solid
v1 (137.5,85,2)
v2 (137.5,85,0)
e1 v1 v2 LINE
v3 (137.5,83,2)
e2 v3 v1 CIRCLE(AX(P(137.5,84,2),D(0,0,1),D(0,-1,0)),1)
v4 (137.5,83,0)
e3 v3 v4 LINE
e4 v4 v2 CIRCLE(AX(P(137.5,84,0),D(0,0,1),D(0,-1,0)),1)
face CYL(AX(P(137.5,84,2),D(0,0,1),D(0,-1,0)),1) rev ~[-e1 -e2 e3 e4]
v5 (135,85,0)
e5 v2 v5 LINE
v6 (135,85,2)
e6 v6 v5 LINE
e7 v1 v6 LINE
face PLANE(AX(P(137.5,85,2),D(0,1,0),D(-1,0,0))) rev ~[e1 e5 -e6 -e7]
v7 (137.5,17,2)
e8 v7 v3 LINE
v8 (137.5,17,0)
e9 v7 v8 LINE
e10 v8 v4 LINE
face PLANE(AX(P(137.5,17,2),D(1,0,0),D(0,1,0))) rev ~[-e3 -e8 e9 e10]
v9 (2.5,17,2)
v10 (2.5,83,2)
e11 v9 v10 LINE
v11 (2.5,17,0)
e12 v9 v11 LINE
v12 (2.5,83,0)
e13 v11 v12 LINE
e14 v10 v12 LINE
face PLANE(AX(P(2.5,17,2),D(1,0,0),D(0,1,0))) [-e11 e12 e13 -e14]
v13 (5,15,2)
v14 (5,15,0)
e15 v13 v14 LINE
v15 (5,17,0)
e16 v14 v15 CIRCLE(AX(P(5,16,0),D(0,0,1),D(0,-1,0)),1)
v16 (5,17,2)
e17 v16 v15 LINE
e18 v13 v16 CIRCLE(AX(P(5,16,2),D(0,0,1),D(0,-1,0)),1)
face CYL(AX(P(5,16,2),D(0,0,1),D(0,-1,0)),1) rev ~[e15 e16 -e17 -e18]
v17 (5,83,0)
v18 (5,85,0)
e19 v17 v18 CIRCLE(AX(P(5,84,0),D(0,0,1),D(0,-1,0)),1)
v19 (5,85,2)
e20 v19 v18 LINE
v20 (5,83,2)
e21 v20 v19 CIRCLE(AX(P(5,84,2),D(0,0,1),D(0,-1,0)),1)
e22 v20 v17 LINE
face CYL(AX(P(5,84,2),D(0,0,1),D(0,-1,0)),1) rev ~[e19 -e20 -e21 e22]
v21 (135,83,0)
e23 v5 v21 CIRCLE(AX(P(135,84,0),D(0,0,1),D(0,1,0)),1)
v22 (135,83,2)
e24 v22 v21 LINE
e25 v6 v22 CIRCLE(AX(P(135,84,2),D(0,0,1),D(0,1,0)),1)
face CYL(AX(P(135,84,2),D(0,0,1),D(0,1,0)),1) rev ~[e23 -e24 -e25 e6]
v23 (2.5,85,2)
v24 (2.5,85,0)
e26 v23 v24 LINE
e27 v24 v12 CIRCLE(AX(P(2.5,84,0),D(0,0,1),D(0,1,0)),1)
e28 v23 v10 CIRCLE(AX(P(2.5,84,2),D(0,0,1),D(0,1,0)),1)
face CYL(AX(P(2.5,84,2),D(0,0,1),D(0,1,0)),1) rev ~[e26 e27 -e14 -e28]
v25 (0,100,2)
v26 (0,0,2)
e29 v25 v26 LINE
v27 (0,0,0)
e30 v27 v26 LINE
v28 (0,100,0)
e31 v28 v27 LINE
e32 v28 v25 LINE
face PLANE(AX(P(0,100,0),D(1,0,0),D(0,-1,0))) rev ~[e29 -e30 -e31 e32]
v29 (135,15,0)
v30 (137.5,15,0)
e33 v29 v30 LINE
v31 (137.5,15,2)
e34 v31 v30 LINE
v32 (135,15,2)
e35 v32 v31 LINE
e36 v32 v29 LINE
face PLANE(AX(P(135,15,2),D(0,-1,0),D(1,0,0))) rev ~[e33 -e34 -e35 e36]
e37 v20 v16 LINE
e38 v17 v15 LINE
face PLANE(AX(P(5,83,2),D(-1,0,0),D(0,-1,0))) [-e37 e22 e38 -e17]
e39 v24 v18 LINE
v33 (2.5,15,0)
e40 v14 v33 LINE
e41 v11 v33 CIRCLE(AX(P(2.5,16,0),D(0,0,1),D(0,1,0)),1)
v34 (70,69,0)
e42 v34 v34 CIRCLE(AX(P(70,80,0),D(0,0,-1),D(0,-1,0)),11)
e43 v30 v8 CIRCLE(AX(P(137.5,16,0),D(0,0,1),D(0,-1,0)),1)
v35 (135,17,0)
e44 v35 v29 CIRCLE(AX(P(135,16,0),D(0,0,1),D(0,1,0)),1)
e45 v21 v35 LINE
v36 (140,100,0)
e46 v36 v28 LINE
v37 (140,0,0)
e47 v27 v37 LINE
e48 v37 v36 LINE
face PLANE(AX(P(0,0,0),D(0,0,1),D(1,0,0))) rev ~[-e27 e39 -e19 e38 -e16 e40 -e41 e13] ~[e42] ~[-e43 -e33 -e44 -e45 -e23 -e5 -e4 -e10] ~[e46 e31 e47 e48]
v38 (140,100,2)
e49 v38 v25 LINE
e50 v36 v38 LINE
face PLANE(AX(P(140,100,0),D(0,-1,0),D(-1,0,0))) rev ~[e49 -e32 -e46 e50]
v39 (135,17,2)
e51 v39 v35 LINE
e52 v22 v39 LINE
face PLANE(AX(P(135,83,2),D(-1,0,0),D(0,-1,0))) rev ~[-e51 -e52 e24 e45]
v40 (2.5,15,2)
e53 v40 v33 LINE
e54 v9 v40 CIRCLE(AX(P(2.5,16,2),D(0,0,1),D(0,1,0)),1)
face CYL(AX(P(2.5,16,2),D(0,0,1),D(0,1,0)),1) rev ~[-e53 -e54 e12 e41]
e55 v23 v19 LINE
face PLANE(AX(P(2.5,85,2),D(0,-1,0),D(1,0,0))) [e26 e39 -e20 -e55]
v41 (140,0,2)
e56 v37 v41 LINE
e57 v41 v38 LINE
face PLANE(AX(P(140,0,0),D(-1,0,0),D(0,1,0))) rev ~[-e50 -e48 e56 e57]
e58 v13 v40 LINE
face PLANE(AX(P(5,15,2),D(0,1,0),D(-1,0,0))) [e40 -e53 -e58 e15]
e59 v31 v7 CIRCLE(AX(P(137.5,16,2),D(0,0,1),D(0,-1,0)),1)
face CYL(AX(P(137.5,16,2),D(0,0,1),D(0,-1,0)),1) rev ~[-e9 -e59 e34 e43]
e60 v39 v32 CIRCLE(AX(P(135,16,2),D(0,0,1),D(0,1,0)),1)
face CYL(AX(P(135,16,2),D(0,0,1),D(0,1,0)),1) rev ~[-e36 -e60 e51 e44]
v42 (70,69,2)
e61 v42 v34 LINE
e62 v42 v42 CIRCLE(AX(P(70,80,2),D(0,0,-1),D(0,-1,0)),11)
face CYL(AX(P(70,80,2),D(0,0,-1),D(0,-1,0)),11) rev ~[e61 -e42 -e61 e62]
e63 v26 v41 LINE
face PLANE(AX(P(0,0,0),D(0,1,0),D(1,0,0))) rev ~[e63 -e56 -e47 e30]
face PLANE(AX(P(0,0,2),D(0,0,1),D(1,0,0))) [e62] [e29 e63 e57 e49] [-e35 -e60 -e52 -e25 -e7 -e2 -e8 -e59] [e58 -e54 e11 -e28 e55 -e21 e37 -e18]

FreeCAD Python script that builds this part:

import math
import FreeCAD as App
import Part
import Sketcher
from FreeCAD import Vector
Q = App.Units.Quantity

doc = App.newDocument("Part")
body = doc.addObject("PartDesign::Body", "Body")

# Sketch on XY plane
sketch1 = body.newObject("Sketcher::SketchObject", "Sketch")
sketch1.AttachmentSupport = (doc.getObject("XY_Plane"), [""])
sketch1.MapMode = "FlatFace"
sketch1.addGeometry([
    Part.LineSegment(Vector(0, 100, 0), Vector(0, 0, 0)),
    Part.LineSegment(Vector(0, 0, 0), Vector(140, 0, 0)),
    Part.LineSegment(Vector(140, 0, 0), Vector(140, 100, 0)),
    Part.LineSegment(Vector(140, 100, 0), Vector(0, 100, 0)),
], False)
sketch1.addConstraint([
    Sketcher.Constraint("Coincident", 0, 2, 1, 1),
    Sketcher.Constraint("Coincident", 1, 2, 2, 1),
    Sketcher.Constraint("Coincident", 2, 2, 3, 1),
    Sketcher.Constraint("Coincident", 3, 2, 0, 1),
    Sketcher.Constraint("Vertical", 0),
    Sketcher.Constraint("Horizontal", 1),
    Sketcher.Constraint("Vertical", 2),
    Sketcher.Constraint("Horizontal", 3),
    Sketcher.Constraint("Coincident", 0, 2, -1, 1),
    Sketcher.Constraint("DistanceX", 1, 1, 1, 2, Q("140 mm")),
    Sketcher.Constraint("DistanceY", 0, 2, 0, 1, Q("100 mm")),
])
pad1 = body.newObject("PartDesign::Pad", "Pad")
pad1.Profile = sketch1
pad1.Length = 2

# Sketch on XY plane
sketch2 = body.newObject("Sketcher::SketchObject", "Sketch001")
sketch2.AttachmentSupport = (doc.getObject("XY_Plane"), [""])
sketch2.MapMode = "FlatFace"
sketch2.AttachmentOffset = App.Placement(Vector(0, 0, 2), App.Rotation())
sketch2.addGeometry([
    Part.LineSegment(Vector(5, 85, 0), Vector(2.5, 85, 0)),  # 0
    Part.ArcOfCircle(Part.Circle(Vector(2.5, 84, 0), Vector(0, 0, 1), 1), math.radians(90), math.radians(270)),  # 1
    Part.LineSegment(Vector(2.5, 83, 0), Vector(2.5, 17, 0)),  # 2
    Part.ArcOfCircle(Part.Circle(Vector(2.5, 16, 0), Vector(0, 0, 1), 1), math.radians(90), math.radians(270)),  # 3
    Part.LineSegment(Vector(2.5, 15, 0), Vector(5, 15, 0)),  # 4
    Part.ArcOfCircle(Part.Circle(Vector(5, 16, 0), Vector(0, 0, 1), 1), math.radians(-90), math.radians(90)),  # 5
    Part.LineSegment(Vector(5, 17, 0), Vector(5, 83, 0)),  # 6
    Part.ArcOfCircle(Part.Circle(Vector(5, 84, 0), Vector(0, 0, 1), 1), math.radians(-90), math.radians(90)),  # 7
    Part.ArcOfCircle(Part.Circle(Vector(137.5, 84, 0), Vector(0, 0, 1), 1), math.radians(-90), math.radians(90)),  # 8
    Part.LineSegment(Vector(137.5, 85, 0), Vector(135, 85, 0)),  # 9
    Part.ArcOfCircle(Part.Circle(Vector(135, 84, 0), Vector(0, 0, 1), 1), math.radians(90), math.radians(270)),  # 10
    Part.LineSegment(Vector(135, 83, 0), Vector(135, 17, 0)),  # 11
    Part.ArcOfCircle(Part.Circle(Vector(135, 16, 0), Vector(0, 0, 1), 1), math.radians(90), math.radians(270)),  # 12
    Part.LineSegment(Vector(135, 15, 0), Vector(137.5, 15, 0)),  # 13
    Part.ArcOfCircle(Part.Circle(Vector(137.5, 16, 0), Vector(0, 0, 1), 1), math.radians(-90), math.radians(90)),  # 14
    Part.LineSegment(Vector(137.5, 17, 0), Vector(137.5, 83, 0)),  # 15
], False)
sketch2.addConstraint([
    Sketcher.Constraint("Tangent", 0, 2, 1, 1),
    Sketcher.Constraint("Coincident", 1, 2, 2, 1),
    Sketcher.Constraint("Coincident", 2, 2, 3, 1),
    Sketcher.Constraint("Tangent", 3, 2, 4, 1),
    Sketcher.Constraint("Tangent", 4, 2, 5, 1),
    Sketcher.Constraint("Coincident", 5, 2, 6, 1),
    Sketcher.Constraint("Coincident", 6, 2, 7, 1),
    Sketcher.Constraint("Tangent", 7, 2, 0, 1),
    Sketcher.Constraint("Tangent", 8, 2, 9, 1),
    Sketcher.Constraint("Tangent", 9, 2, 10, 1),
    Sketcher.Constraint("Coincident", 10, 2, 11, 1),
    Sketcher.Constraint("Coincident", 11, 2, 12, 1),
    Sketcher.Constraint("Tangent", 12, 2, 13, 1),
    Sketcher.Constraint("Tangent", 13, 2, 14, 1),
    Sketcher.Constraint("Coincident", 14, 2, 15, 1),
    Sketcher.Constraint("Coincident", 15, 2, 8, 1),
    Sketcher.Constraint("Horizontal", 0),
    Sketcher.Constraint("Vertical", 2),
    Sketcher.Constraint("Horizontal", 4),
    Sketcher.Constraint("Vertical", 6),
    Sketcher.Constraint("Horizontal", 9),
    Sketcher.Constraint("Vertical", 11),
    Sketcher.Constraint("Horizontal", 13),
    Sketcher.Constraint("Vertical", 15),
    Sketcher.Constraint("Equal", 1, 3),
    Sketcher.Constraint("Equal", 3, 5),
    Sketcher.Constraint("Equal", 5, 7),
    Sketcher.Constraint("Equal", 7, 8),
    Sketcher.Constraint("Equal", 8, 10),
    Sketcher.Constraint("Equal", 10, 12),
    Sketcher.Constraint("Equal", 12, 14),
    Sketcher.Constraint("Horizontal", 7, 3, 8, 3),
    Sketcher.Constraint("Horizontal", 5, 3, 12, 3),
    Sketcher.Constraint("Vertical", 1, 3, 3, 3),
    Sketcher.Constraint("Vertical", 5, 3, 7, 3),
    Sketcher.Constraint("Vertical", 10, 3, 12, 3),
    Sketcher.Constraint("Vertical", 8, 3, 14, 3),
    Sketcher.Constraint("Vertical", 0, 2, 1, 2),
    Sketcher.Constraint("Vertical", 4, 2, 5, 2),
    Sketcher.Constraint("Vertical", 9, 2, 10, 2),
    Sketcher.Constraint("Vertical", 13, 2, 14, 2),
    Sketcher.Constraint("Equal", 4, 9),
    Sketcher.Constraint("Radius", 1, Q("1 mm")),
    Sketcher.Constraint("DistanceX", 0, 2, 0, 1, Q("2.5 mm")),
    Sketcher.Constraint("DistanceX", -1, 1, 1, 3, Q("2.5 mm")),
    Sketcher.Constraint("DistanceY", 2, 2, 2, 1, Q("66 mm")),
    Sketcher.Constraint("DistanceY", -1, 1, 1, 3, Q("84 mm")),
    Sketcher.Constraint("DistanceX", -1, 1, 10, 3, Q("135 mm")),
])
pocket1 = body.newObject("PartDesign::Pocket", "Pocket")
pocket1.Profile = sketch2
pocket1.Type = "ThroughAll"

# Sketch on XY plane
sketch3 = body.newObject("Sketcher::SketchObject", "Sketch002")
sketch3.AttachmentSupport = (doc.getObject("XY_Plane"), [""])
sketch3.MapMode = "FlatFace"
sketch3.AttachmentOffset = App.Placement(Vector(0, 0, 2), App.Rotation())
sketch3.addGeometry(Part.Circle(Vector(70, 80, 0), Vector(0, 0, 1), 11), False)
sketch3.addConstraint([
    Sketcher.Constraint("Diameter", 0, Q("22 mm")),
    Sketcher.Constraint("DistanceX", -1, 1, 0, 3, Q("70 mm")),
    Sketcher.Constraint("DistanceY", -1, 1, 0, 3, Q("80 mm")),
])
doc.recompute()
hole = body.newObject("PartDesign::Hole", "Hole")
hole.Profile = sketch3
hole.ThreadType = "None"
hole.Diameter = 22
hole.DepthType = "ThroughAll"

doc.recompute()
